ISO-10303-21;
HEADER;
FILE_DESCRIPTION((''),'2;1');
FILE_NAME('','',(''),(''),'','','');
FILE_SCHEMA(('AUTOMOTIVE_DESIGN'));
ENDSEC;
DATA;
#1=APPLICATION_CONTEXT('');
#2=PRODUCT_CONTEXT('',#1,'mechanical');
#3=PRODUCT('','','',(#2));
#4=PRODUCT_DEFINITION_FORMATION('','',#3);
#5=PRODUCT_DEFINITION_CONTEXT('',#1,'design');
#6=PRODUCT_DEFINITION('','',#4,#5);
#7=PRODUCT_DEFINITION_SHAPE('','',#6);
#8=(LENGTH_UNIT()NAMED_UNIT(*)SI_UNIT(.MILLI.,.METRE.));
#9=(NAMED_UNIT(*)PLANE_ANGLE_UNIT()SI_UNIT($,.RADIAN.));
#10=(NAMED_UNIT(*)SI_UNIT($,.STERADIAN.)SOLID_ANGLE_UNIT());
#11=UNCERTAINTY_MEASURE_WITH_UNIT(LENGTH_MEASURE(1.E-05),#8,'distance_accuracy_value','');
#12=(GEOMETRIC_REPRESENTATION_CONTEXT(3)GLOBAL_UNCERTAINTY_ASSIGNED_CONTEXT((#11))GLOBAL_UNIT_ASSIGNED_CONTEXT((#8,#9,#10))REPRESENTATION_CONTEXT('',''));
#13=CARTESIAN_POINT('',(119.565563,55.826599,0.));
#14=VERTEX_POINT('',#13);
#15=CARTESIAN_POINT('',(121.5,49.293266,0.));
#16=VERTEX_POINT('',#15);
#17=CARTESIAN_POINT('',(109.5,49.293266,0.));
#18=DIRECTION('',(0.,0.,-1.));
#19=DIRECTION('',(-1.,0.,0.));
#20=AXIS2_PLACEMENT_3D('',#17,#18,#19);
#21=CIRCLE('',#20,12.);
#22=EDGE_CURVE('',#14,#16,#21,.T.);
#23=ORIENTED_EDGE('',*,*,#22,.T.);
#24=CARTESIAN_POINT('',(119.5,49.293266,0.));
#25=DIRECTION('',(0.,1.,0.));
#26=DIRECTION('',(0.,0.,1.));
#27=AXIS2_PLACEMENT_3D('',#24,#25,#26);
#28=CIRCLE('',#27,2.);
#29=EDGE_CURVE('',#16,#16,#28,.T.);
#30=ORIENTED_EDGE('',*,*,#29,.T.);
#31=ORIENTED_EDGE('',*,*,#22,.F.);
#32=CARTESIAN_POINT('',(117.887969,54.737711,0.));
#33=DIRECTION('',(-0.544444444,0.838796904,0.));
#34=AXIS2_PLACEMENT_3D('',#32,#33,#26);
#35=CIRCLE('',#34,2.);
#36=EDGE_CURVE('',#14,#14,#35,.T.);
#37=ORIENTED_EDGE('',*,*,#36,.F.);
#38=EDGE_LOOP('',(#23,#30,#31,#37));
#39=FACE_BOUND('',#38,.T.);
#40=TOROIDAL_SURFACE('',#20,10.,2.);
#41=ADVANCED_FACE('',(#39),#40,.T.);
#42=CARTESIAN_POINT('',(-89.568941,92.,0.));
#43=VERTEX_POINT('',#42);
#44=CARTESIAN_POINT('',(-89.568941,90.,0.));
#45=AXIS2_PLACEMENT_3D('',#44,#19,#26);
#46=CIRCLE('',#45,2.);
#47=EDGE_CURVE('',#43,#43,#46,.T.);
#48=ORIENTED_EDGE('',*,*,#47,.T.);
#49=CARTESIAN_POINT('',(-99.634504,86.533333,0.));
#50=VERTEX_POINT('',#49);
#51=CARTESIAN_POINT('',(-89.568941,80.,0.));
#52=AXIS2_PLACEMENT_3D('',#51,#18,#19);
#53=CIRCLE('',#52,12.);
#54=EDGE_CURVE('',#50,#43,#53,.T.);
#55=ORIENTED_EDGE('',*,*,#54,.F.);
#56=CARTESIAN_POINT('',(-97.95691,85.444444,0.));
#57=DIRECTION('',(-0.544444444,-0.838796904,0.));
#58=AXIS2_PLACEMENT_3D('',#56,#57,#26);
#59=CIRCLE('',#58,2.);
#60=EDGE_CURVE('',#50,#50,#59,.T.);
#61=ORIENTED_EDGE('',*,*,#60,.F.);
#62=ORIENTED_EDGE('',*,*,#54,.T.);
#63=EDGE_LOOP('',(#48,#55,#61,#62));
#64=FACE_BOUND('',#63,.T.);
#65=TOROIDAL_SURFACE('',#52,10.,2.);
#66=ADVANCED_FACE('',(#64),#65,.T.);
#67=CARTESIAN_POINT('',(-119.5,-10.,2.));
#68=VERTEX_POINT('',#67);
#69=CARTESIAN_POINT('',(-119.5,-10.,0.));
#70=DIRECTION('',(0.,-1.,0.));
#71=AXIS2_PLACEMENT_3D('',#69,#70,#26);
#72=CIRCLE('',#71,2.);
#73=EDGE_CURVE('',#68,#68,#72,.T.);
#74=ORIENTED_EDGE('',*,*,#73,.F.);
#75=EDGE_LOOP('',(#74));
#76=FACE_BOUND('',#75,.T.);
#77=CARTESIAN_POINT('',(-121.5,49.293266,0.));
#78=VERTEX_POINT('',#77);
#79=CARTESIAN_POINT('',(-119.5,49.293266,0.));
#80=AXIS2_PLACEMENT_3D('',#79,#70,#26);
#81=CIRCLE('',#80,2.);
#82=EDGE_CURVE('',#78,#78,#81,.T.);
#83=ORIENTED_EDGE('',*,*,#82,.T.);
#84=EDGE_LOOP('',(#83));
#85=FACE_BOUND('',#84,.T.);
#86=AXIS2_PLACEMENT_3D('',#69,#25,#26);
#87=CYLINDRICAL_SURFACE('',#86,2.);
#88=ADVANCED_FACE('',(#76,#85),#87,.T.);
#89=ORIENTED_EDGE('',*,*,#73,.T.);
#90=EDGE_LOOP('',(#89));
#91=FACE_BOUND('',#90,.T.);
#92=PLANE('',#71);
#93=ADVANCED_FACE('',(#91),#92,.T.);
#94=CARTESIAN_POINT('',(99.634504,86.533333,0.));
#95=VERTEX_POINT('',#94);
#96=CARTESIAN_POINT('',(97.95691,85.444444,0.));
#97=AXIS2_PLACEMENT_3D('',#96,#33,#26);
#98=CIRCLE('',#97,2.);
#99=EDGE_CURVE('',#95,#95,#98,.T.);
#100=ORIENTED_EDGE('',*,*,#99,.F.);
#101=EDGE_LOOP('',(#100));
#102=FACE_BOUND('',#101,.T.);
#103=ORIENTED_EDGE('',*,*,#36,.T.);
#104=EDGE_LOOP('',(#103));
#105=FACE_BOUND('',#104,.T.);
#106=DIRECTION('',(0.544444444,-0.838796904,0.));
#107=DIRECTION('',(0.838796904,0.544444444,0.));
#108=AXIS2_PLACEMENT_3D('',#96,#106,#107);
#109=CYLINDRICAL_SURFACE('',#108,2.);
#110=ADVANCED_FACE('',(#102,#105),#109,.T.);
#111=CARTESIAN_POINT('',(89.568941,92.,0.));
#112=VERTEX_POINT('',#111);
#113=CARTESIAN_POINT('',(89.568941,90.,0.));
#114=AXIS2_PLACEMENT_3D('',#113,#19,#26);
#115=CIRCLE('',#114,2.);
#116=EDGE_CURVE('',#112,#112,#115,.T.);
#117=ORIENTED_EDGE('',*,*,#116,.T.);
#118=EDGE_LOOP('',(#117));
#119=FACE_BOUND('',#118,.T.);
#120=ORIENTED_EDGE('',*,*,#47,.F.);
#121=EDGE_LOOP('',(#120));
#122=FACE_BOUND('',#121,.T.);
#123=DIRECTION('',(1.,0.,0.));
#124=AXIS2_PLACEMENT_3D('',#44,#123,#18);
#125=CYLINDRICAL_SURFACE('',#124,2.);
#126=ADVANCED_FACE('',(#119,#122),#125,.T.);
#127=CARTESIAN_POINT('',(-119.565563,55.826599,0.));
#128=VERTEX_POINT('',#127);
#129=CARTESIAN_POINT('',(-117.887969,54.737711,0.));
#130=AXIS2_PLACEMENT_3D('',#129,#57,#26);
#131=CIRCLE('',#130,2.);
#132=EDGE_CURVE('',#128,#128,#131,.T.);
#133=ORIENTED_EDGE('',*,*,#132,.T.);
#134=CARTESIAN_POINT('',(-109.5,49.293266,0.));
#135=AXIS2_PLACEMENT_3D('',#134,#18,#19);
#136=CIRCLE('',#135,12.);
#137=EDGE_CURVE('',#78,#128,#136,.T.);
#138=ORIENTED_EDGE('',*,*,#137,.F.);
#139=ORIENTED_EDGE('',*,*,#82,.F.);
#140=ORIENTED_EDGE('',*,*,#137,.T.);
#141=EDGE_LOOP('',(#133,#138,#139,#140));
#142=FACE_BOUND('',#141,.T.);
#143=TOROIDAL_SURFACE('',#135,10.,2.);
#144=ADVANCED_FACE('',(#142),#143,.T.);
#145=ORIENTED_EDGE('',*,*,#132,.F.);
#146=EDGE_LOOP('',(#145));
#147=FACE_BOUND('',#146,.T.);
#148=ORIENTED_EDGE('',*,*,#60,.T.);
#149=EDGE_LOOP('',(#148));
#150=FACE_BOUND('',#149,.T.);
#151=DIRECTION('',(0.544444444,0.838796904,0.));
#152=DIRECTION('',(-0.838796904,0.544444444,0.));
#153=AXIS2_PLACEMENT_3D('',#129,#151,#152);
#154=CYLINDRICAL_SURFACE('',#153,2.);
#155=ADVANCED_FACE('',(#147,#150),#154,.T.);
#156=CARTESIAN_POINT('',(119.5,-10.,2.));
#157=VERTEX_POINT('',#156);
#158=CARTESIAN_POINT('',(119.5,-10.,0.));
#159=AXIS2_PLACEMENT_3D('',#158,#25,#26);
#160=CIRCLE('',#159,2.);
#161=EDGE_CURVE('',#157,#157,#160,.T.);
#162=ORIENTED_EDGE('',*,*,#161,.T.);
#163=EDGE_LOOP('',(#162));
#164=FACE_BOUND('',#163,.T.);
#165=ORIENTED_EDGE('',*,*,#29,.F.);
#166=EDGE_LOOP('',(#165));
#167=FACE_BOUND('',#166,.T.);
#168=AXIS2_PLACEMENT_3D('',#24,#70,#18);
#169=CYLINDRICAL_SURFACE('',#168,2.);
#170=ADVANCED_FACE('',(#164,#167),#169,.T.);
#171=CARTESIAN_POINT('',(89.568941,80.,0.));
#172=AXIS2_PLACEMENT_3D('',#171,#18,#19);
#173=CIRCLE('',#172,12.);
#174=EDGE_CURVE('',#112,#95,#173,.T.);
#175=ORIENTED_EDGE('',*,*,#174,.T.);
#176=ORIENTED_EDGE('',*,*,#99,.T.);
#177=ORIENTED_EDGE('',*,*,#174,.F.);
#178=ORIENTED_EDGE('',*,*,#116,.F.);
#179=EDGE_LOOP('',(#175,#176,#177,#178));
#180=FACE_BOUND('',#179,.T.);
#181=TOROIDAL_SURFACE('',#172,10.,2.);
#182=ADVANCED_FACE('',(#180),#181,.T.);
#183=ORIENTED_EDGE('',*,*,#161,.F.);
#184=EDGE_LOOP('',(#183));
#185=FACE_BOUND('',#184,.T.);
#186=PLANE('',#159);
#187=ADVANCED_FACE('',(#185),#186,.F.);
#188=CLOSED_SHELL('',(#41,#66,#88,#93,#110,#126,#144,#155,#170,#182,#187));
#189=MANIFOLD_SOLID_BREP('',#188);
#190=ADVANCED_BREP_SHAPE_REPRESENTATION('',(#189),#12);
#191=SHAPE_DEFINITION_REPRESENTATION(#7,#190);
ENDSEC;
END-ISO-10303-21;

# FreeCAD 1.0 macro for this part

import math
import FreeCAD as App
import Part
import Sketcher
from FreeCAD import Vector
Q = App.Units.Quantity

doc = App.newDocument("Part")
body = doc.addObject("PartDesign::Body", "Body")

# Sketch on XZ plane
sketch1 = body.newObject("Sketcher::SketchObject", "Sketch")
sketch1.AttachmentSupport = (doc.getObject("XZ_Plane"), [""])
sketch1.MapMode = "FlatFace"
sketch1.AttachmentOffset = App.Placement(Vector(0, 0, 10), App.Rotation())
sketch1.addGeometry(Part.Circle(Vector(-119.5, 0, 0), Vector(0, 0, 1), 2), False)
sketch1.addConstraint(Sketcher.Constraint("PointOnObject", 0, 3, -1))
sketch1.addConstraint(Sketcher.Constraint("Diameter", 0, Q("4 mm")))
sketch1.addConstraint(Sketcher.Constraint("DistanceX", 0, 3, -1, 1, Q("119.5 mm")))

# Sketch on XY plane
sketch2 = body.newObject("Sketcher::SketchObject", "Sketch001")
sketch2.AttachmentSupport = (doc.getObject("XY_Plane"), [""])
sketch2.MapMode = "FlatFace"
sketch2.addGeometry(Part.LineSegment(Vector(-120, -10, 0), Vector(-120, 49, 0)), False)
sketch2.addGeometry(Part.ArcOfCircle(Part.Circle(Vector(-109, 49, 0), Vector(0, 0, 1), 10), math.radians(147), math.radians(180)), False)
sketch2.addGeometry(Part.LineSegment(Vector(-118, 55, 0), Vector(-98, 85, 0)), False)
sketch2.addGeometry(Part.ArcOfCircle(Part.Circle(Vector(-90, 80, 0), Vector(0, 0, 1), 10), math.radians(90), math.radians(147)), False)
sketch2.addGeometry(Part.LineSegment(Vector(-90, 90, 0), Vector(90, 90, 0)), False)
sketch2.addGeometry(Part.ArcOfCircle(Part.Circle(Vector(90, 80, 0), Vector(0, 0, 1), 10), math.radians(33), math.radians(90)), False)
sketch2.addGeometry(Part.LineSegment(Vector(98, 85, 0), Vector(118, 55, 0)), False)
sketch2.addGeometry(Part.ArcOfCircle(Part.Circle(Vector(109, 49, 0), Vector(0, 0, 1), 10), math.radians(0), math.radians(33)), False)
sketch2.addGeometry(Part.LineSegment(Vector(120, 49, 0), Vector(120, -10, 0)), False)
sketch2.addConstraint(Sketcher.Constraint("Tangent", 0, 2, 1, 2))
sketch2.addConstraint(Sketcher.Constraint("Tangent", 1, 1, 2, 1))
sketch2.addConstraint(Sketcher.Constraint("Tangent", 2, 2, 3, 2))
sketch2.addConstraint(Sketcher.Constraint("Tangent", 3, 1, 4, 1))
sketch2.addConstraint(Sketcher.Constraint("Tangent", 4, 2, 5, 2))
sketch2.addConstraint(Sketcher.Constraint("Tangent", 5, 1, 6, 1))
sketch2.addConstraint(Sketcher.Constraint("Tangent", 6, 2, 7, 2))
sketch2.addConstraint(Sketcher.Constraint("Tangent", 7, 1, 8, 1))
sketch2.addConstraint(Sketcher.Constraint("Vertical", 0))
sketch2.addConstraint(Sketcher.Constraint("Horizontal", 4))
sketch2.addConstraint(Sketcher.Constraint("Vertical", 8))
sketch2.addConstraint(Sketcher.Constraint("Equal", 1, 3))
sketch2.addConstraint(Sketcher.Constraint("Equal", 3, 5))
sketch2.addConstraint(Sketcher.Constraint("Equal", 5, 7))
sketch2.addConstraint(Sketcher.Constraint("Symmetric", 1, 3, 7, 3, -2))
sketch2.addConstraint(Sketcher.Constraint("Horizontal", 2, 2, 5, 1))
sketch2.addConstraint(Sketcher.Constraint("Horizontal", 0, 1, 8, 2))
sketch2.addConstraint(Sketcher.Constraint("Radius", 1, Q("10 mm")))
sketch2.addConstraint(Sketcher.Constraint("DistanceY", -1, 1, 3, 3, Q("80 mm")))
sketch2.addConstraint(Sketcher.Constraint("DistanceY", 0, 1, -1, 1, Q("10 mm")))
sketch2.addConstraint(Sketcher.Constraint("DistanceX", 1, 3, 7, 3, Q("219 mm")))
sketch2.addConstraint(Sketcher.Constraint("DistanceX", 4, 1, 4, 2, Q("179.137882 mm")))
sketch2.addConstraint(Sketcher.Constraint("DistanceY", 0, 1, 0, 2, Q("59.293266 mm")))
doc.recompute()

additivepipe = body.newObject("PartDesign::AdditivePipe", "AdditivePipe")
additivepipe.Profile = sketch1
additivepipe.Spine = (sketch2, ["Edge1", "Edge2", "Edge3", "Edge4", "Edge5", "Edge6", "Edge7", "Edge8", "Edge9"])

doc.recompute()
